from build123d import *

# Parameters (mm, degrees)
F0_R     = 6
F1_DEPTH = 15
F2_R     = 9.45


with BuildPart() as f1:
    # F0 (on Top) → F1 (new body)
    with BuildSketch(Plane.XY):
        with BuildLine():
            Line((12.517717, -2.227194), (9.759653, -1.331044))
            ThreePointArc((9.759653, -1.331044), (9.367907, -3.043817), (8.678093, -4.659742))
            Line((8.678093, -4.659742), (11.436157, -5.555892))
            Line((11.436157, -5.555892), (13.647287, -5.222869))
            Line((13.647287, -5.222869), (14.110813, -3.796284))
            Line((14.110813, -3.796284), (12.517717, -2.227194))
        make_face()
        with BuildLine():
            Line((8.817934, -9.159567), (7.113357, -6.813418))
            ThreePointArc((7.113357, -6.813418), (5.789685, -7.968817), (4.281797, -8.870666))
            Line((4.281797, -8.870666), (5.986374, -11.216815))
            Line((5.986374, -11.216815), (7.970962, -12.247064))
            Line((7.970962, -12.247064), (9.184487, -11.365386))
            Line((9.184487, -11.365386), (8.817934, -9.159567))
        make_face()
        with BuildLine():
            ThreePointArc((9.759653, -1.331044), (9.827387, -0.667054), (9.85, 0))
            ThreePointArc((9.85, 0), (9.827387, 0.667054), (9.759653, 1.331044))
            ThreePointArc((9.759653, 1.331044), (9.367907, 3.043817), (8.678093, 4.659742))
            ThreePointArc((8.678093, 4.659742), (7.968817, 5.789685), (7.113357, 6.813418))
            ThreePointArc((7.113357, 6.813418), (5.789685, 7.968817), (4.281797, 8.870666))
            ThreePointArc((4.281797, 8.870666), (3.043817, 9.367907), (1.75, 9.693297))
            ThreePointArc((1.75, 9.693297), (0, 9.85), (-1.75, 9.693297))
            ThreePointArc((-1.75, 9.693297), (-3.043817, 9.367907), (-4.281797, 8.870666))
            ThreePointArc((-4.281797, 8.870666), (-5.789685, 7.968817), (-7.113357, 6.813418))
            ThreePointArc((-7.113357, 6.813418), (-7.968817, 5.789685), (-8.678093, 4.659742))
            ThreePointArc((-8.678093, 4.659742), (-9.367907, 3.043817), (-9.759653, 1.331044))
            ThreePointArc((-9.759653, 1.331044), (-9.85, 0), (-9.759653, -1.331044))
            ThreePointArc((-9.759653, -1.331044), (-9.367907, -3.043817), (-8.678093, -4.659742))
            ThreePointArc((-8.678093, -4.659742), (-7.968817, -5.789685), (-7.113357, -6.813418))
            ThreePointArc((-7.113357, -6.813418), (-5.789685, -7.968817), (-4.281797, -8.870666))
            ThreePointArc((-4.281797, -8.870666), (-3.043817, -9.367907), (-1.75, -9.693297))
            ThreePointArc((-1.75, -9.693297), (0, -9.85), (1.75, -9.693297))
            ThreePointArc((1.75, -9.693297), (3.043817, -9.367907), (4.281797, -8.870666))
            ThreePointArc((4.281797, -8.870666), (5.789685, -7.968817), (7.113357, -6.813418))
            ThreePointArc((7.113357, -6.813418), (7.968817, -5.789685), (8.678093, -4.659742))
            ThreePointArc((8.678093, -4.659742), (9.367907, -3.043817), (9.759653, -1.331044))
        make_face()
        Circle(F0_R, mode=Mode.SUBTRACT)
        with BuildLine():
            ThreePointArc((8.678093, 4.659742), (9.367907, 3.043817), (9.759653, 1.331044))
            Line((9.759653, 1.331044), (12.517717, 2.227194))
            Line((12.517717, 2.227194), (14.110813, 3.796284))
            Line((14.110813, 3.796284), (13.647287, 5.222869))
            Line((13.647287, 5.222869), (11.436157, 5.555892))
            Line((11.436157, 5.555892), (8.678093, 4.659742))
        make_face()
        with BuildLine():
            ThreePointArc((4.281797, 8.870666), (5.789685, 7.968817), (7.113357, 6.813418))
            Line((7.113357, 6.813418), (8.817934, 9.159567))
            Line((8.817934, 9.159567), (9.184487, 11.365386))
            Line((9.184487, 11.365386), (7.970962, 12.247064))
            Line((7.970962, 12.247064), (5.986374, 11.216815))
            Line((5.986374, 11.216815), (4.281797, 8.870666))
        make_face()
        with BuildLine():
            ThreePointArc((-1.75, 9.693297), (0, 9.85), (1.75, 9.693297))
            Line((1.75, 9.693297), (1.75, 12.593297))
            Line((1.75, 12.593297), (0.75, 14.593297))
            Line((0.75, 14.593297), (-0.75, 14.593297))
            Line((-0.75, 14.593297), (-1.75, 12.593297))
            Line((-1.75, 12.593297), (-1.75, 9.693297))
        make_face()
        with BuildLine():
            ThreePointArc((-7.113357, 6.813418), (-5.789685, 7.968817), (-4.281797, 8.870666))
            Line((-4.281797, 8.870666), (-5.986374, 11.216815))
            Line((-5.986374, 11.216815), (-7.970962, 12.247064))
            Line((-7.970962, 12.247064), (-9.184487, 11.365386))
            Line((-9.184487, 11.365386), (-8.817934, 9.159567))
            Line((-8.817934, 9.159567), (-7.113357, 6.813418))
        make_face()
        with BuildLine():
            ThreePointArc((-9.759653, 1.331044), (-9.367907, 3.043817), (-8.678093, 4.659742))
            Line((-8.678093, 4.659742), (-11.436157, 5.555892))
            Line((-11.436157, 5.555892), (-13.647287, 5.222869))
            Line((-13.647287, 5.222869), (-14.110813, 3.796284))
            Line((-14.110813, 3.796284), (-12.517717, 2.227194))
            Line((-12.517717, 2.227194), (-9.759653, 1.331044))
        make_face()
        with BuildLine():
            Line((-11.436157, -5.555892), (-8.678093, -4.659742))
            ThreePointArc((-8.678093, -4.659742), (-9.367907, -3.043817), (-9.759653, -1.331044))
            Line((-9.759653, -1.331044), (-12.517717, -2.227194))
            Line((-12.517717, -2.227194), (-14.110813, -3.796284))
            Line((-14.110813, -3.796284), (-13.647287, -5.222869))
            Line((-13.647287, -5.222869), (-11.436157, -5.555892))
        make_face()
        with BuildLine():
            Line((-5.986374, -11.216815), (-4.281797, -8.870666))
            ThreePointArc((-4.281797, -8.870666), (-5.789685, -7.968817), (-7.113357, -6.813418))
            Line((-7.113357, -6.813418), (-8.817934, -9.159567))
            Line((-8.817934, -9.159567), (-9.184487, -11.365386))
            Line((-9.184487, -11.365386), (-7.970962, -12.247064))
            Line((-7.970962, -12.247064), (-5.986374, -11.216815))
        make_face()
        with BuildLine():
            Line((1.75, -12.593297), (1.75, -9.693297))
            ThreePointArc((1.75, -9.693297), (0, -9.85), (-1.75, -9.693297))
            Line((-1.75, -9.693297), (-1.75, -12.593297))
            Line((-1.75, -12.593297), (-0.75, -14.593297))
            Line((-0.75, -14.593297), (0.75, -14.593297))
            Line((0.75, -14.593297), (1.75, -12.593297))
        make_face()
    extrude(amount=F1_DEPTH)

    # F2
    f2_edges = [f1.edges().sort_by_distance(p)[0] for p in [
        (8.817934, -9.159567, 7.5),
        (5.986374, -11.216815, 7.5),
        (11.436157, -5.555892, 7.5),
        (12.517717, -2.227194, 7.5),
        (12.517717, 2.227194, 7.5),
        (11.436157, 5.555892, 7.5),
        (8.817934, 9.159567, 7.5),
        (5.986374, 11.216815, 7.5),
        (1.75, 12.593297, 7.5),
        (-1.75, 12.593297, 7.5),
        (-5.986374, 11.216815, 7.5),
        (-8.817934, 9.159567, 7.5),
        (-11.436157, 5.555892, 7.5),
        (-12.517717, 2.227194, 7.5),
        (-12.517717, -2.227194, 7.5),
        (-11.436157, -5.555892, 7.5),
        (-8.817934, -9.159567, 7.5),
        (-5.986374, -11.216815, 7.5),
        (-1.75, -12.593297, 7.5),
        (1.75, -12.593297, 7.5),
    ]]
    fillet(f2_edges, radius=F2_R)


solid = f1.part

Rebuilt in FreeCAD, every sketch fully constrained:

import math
import FreeCAD as App
import Part
import Sketcher
from FreeCAD import Vector
Q = App.Units.Quantity


def edges_at(feature, points):
    """Names of the edges that pass closest to the given points."""
    edges = feature.Shape.Edges
    near = lambda p: min(range(len(edges)), key=lambda i: edges[i].distToShape(Part.Vertex(*p))[0])
    return sorted({f"Edge{near(p) + 1}" for p in points})

doc = App.newDocument("Part")
body = doc.addObject("PartDesign::Body", "Body")

sketch1 = body.newObject("Sketcher::SketchObject", "Sketch")
sketch1.AttachmentSupport = (doc.getObject("XY_Plane"), [""])
sketch1.MapMode = "FlatFace"
sketch1.addGeometry([
    Part.LineSegment(Vector(12.517717, -2.227194, 0), Vector(9.759653, -1.331044, 0)),
    Part.ArcOfCircle(Part.Circle(Vector(-0.000135, 0.000007, 0), Vector(0, 0, 1), 9.850135), math.radians(-7.766153), math.radians(-0.000043)),
    Part.ArcOfCircle(Part.Circle(Vector(-0.000135, -0.000007, 0), Vector(0, 0, 1), 9.850135), math.radians(0.000043), math.radians(7.766153)),
    Part.LineSegment(Vector(9.759653, 1.331044, 0), Vector(12.517717, 2.227194, 0)),
    Part.LineSegment(Vector(12.517717, 2.227194, 0), Vector(14.110813, 3.796284, 0)),
    Part.LineSegment(Vector(14.110813, 3.796284, 0), Vector(13.647287, 5.222869, 0)),
    Part.LineSegment(Vector(13.647287, 5.222869, 0), Vector(11.436157, 5.555892, 0)),
    Part.LineSegment(Vector(11.436157, 5.555892, 0), Vector(8.678093, 4.659742, 0)),
    Part.ArcOfCircle(Part.Circle(Vector(-0.000031, -0.000018, 0), Vector(0, 0, 1), 9.850035), math.radians(28.233787), math.radians(43.766171)),
    Part.LineSegment(Vector(7.113357, 6.813418, 0), Vector(8.817934, 9.159567, 0)),
    Part.LineSegment(Vector(8.817934, 9.159567, 0), Vector(9.184487, 11.365386, 0)),
    Part.LineSegment(Vector(9.184487, 11.365386, 0), Vector(7.970962, 12.247064, 0)),
    Part.LineSegment(Vector(7.970962, 12.247064, 0), Vector(5.986374, 11.216815, 0)),
    Part.LineSegment(Vector(5.986374, 11.216815, 0), Vector(4.281797, 8.870666, 0)),
    Part.ArcOfCircle(Part.Circle(Vector(-0.000002, -0.000001, 0), Vector(0, 0, 1), 9.850002), math.radians(64.233776), math.radians(79.766212)),
    Part.LineSegment(Vector(1.75, 9.693297, 0), Vector(1.75, 12.593297, 0)),
    Part.LineSegment(Vector(1.75, 12.593297, 0), Vector(0.75, 14.593297, 0)),
    Part.LineSegment(Vector(0.75, 14.593297, 0), Vector(-0.75, 14.593297, 0)),
    Part.LineSegment(Vector(-0.75, 14.593297, 0), Vector(-1.75, 12.593297, 0)),
    Part.LineSegment(Vector(-1.75, 12.593297, 0), Vector(-1.75, 9.693297, 0)),
    Part.ArcOfCircle(Part.Circle(Vector(0.000002, -0.000001, 0), Vector(0, 0, 1), 9.850002), math.radians(100.233788), math.radians(115.766224)),
    Part.LineSegment(Vector(-4.281797, 8.870666, 0), Vector(-5.986374, 11.216815, 0)),
    Part.LineSegment(Vector(-5.986374, 11.216815, 0), Vector(-7.970962, 12.247064, 0)),
    Part.LineSegment(Vector(-7.970962, 12.247064, 0), Vector(-9.184487, 11.365386, 0)),
    Part.LineSegment(Vector(-9.184487, 11.365386, 0), Vector(-8.817934, 9.159567, 0)),
    Part.LineSegment(Vector(-8.817934, 9.159567, 0), Vector(-7.113357, 6.813418, 0)),
    Part.ArcOfCircle(Part.Circle(Vector(0.000031, -0.000018, 0), Vector(0, 0, 1), 9.850035), math.radians(136.233829), math.radians(151.766213)),
    Part.LineSegment(Vector(-8.678093, 4.659742, 0), Vector(-11.436157, 5.555892, 0)),
    Part.LineSegment(Vector(-11.436157, 5.555892, 0), Vector(-13.647287, 5.222869, 0)),
    Part.LineSegment(Vector(-13.647287, 5.222869, 0), Vector(-14.110813, 3.796284, 0)),
    Part.LineSegment(Vector(-14.110813, 3.796284, 0), Vector(-12.517717, 2.227194, 0)),
    Part.LineSegment(Vector(-12.517717, 2.227194, 0), Vector(-9.759653, 1.331044, 0)),
    Part.ArcOfCircle(Part.Circle(Vector(0.000027, 0, 0), Vector(0, 0, 1), 9.850027), math.radians(172.233805), math.radians(187.766195)),
    Part.LineSegment(Vector(-9.759653, -1.331044, 0), Vector(-12.517717, -2.227194, 0)),
    Part.LineSegment(Vector(-12.517717, -2.227194, 0), Vector(-14.110813, -3.796284, 0)),
    Part.LineSegment(Vector(-14.110813, -3.796284, 0), Vector(-13.647287, -5.222869, 0)),
    Part.LineSegment(Vector(-13.647287, -5.222869, 0), Vector(-11.436157, -5.555892, 0)),
    Part.LineSegment(Vector(-11.436157, -5.555892, 0), Vector(-8.678093, -4.659742, 0)),
    Part.ArcOfCircle(Part.Circle(Vector(0.000031, 0.000018, 0), Vector(0, 0, 1), 9.850035), math.radians(-151.766213), math.radians(-136.233829)),
    Part.LineSegment(Vector(-7.113357, -6.813418, 0), Vector(-8.817934, -9.159567, 0)),
    Part.LineSegment(Vector(-8.817934, -9.159567, 0), Vector(-9.184487, -11.365386, 0)),
    Part.LineSegment(Vector(-9.184487, -11.365386, 0), Vector(-7.970962, -12.247064, 0)),
    Part.LineSegment(Vector(-7.970962, -12.247064, 0), Vector(-5.986374, -11.216815, 0)),
    Part.LineSegment(Vector(-5.986374, -11.216815, 0), Vector(-4.281797, -8.870666, 0)),
    Part.ArcOfCircle(Part.Circle(Vector(0.000002, 0.000001, 0), Vector(0, 0, 1), 9.850002), math.radians(-115.766224), math.radians(-100.233788)),
    Part.LineSegment(Vector(-1.75, -9.693297, 0), Vector(-1.75, -12.593297, 0)),
    Part.LineSegment(Vector(-1.75, -12.593297, 0), Vector(-0.75, -14.593297, 0)),
    Part.LineSegment(Vector(-0.75, -14.593297, 0), Vector(0.75, -14.593297, 0)),
    Part.LineSegment(Vector(0.75, -14.593297, 0), Vector(1.75, -12.593297, 0)),
    Part.LineSegment(Vector(1.75, -12.593297, 0), Vector(1.75, -9.693297, 0)),
    Part.ArcOfCircle(Part.Circle(Vector(-0.000002, 0.000001, 0), Vector(0, 0, 1), 9.850002), math.radians(-79.766212), math.radians(-64.233776)),
    Part.LineSegment(Vector(4.281797, -8.870666, 0), Vector(5.986374, -11.216815, 0)),
    Part.LineSegment(Vector(5.986374, -11.216815, 0), Vector(7.970962, -12.247064, 0)),
    Part.LineSegment(Vector(7.970962, -12.247064, 0), Vector(9.184487, -11.365386, 0)),
    Part.LineSegment(Vector(9.184487, -11.365386, 0), Vector(8.817934, -9.159567, 0)),
    Part.LineSegment(Vector(8.817934, -9.159567, 0), Vector(7.113357, -6.813418, 0)),
    Part.ArcOfCircle(Part.Circle(Vector(-0.000031, 0.000018, 0), Vector(0, 0, 1), 9.850035), math.radians(-43.766171), math.radians(-28.233787)),
    Part.LineSegment(Vector(8.678093, -4.659742, 0), Vector(11.436157, -5.555892, 0)),
    Part.LineSegment(Vector(11.436157, -5.555892, 0), Vector(13.647287, -5.222869, 0)),
    Part.LineSegment(Vector(13.647287, -5.222869, 0), Vector(14.110813, -3.796284, 0)),
    Part.LineSegment(Vector(14.110813, -3.796284, 0), Vector(12.517717, -2.227194, 0)),
    Part.Circle(Vector(0, 0, 0), Vector(0, 0, 1), 6),
], False)
sketch1.addConstraint([
    Sketcher.Constraint("Coincident", 0, 2, 1, 1),
    Sketcher.Constraint("Coincident", 1, 2, 2, 1),
    Sketcher.Constraint("Coincident", 2, 2, 3, 1),
    Sketcher.Constraint("Coincident", 3, 2, 4, 1),
    Sketcher.Constraint("Coincident", 4, 2, 5, 1),
    Sketcher.Constraint("Coincident", 5, 2, 6, 1),
    Sketcher.Constraint("Coincident", 6, 2, 7, 1),
    Sketcher.Constraint("Coincident", 7, 2, 8, 1),
    Sketcher.Constraint("Coincident", 8, 2, 9, 1),
    Sketcher.Constraint("Coincident", 9, 2, 10, 1),
    Sketcher.Constraint("Coincident", 10, 2, 11, 1),
    Sketcher.Constraint("Coincident", 11, 2, 12, 1),
    Sketcher.Constraint("Coincident", 12, 2, 13, 1),
    Sketcher.Constraint("Coincident", 13, 2, 14, 1),
    Sketcher.Constraint("Coincident", 14, 2, 15, 1),
    Sketcher.Constraint("Coincident", 15, 2, 16, 1),
    Sketcher.Constraint("Coincident", 16, 2, 17, 1),
    Sketcher.Constraint("Coincident", 17, 2, 18, 1),
    Sketcher.Constraint("Coincident", 18, 2, 19, 1),
    Sketcher.Constraint("Coincident", 19, 2, 20, 1),
    Sketcher.Constraint("Coincident", 20, 2, 21, 1),
    Sketcher.Constraint("Coincident", 21, 2, 22, 1),
    Sketcher.Constraint("Coincident", 22, 2, 23, 1),
    Sketcher.Constraint("Coincident", 23, 2, 24, 1),
    Sketcher.Constraint("Coincident", 24, 2, 25, 1),
    Sketcher.Constraint("Coincident", 25, 2, 26, 1),
    Sketcher.Constraint("Coincident", 26, 2, 27, 1),
    Sketcher.Constraint("Coincident", 27, 2, 28, 1),
    Sketcher.Constraint("Coincident", 28, 2, 29, 1),
    Sketcher.Constraint("Coincident", 29, 2, 30, 1),
    Sketcher.Constraint("Coincident", 30, 2, 31, 1),
    Sketcher.Constraint("Coincident", 31, 2, 32, 1),
    Sketcher.Constraint("Coincident", 32, 2, 33, 1),
    Sketcher.Constraint("Coincident", 33, 2, 34, 1),
    Sketcher.Constraint("Coincident", 34, 2, 35, 1),
    Sketcher.Constraint("Coincident", 35, 2, 36, 1),
    Sketcher.Constraint("Coincident", 36, 2, 37, 1),
    Sketcher.Constraint("Coincident", 37, 2, 38, 1),
    Sketcher.Constraint("Coincident", 38, 2, 39, 1),
    Sketcher.Constraint("Coincident", 39, 2, 40, 1),
    Sketcher.Constraint("Coincident", 40, 2, 41, 1),
    Sketcher.Constraint("Coincident", 41, 2, 42, 1),
    Sketcher.Constraint("Coincident", 42, 2, 43, 1),
    Sketcher.Constraint("Coincident", 43, 2, 44, 1),
    Sketcher.Constraint("Coincident", 44, 2, 45, 1),
    Sketcher.Constraint("Coincident", 45, 2, 46, 1),
    Sketcher.Constraint("Coincident", 46, 2, 47, 1),
    Sketcher.Constraint("Coincident", 47, 2, 48, 1),
    Sketcher.Constraint("Coincident", 48, 2, 49, 1),
    Sketcher.Constraint("Coincident", 49, 2, 50, 1),
    Sketcher.Constraint("Coincident", 50, 2, 51, 1),
    Sketcher.Constraint("Coincident", 51, 2, 52, 1),
    Sketcher.Constraint("Coincident", 52, 2, 53, 1),
    Sketcher.Constraint("Coincident", 53, 2, 54, 1),
    Sketcher.Constraint("Coincident", 54, 2, 55, 1),
    Sketcher.Constraint("Coincident", 55, 2, 56, 1),
    Sketcher.Constraint("Coincident", 56, 2, 57, 1),
    Sketcher.Constraint("Coincident", 57, 2, 58, 1),
    Sketcher.Constraint("Coincident", 58, 2, 59, 1),
    Sketcher.Constraint("Coincident", 59, 2, 60, 1),
    Sketcher.Constraint("Coincident", 60, 2, 0, 1),
    Sketcher.Constraint("Vertical", 15),
    Sketcher.Constraint("Horizontal", 17),
    Sketcher.Constraint("Vertical", 19),
    Sketcher.Constraint("Vertical", 45),
    Sketcher.Constraint("Horizontal", 47),
    Sketcher.Constraint("Vertical", 49),
    Sketcher.Constraint("Coincident", 14, 3, -1, 1),
    Sketcher.Constraint("Coincident", 20, 3, -1, 1),
    Sketcher.Constraint("Coincident", 44, 3, -1, 1),
    Sketcher.Constraint("Coincident", 50, 3, -1, 1),
    Sketcher.Constraint("Coincident", 61, 3, -1, 1),
    Sketcher.Constraint("PointOnObject", 32, 3, -1),
    Sketcher.Constraint("PointOnObject", 1, 2, -1),
    Sketcher.Constraint("Diameter", 61, Q("12 mm")),
    Sketcher.Constraint("Radius", 14, Q("9.850002 mm")),
    Sketcher.Constraint("Radius", 20, Q("9.850002 mm")),
    Sketcher.Constraint("Radius", 44, Q("9.850002 mm")),
    Sketcher.Constraint("Radius", 50, Q("9.850002 mm")),
    Sketcher.Constraint("DistanceX", 17, 2, 17, 1, Q("1.5 mm")),
    Sketcher.Constraint("DistanceX", 47, 1, 47, 2, Q("1.5 mm")),
    Sketcher.Constraint("DistanceY", 15, 1, 15, 2, Q("2.9 mm")),
    Sketcher.Constraint("DistanceY", 19, 2, 19, 1, Q("2.9 mm")),
    Sketcher.Constraint("DistanceY", 45, 2, 45, 1, Q("2.9 mm")),
    Sketcher.Constraint("DistanceY", 49, 1, 49, 2, Q("2.9 mm")),
    Sketcher.Constraint("Distance", 0, Q("2.9 mm")),
    Sketcher.Constraint("Distance", 3, Q("2.9 mm")),
    Sketcher.Constraint("Distance", 5, Q("1.5 mm")),
    Sketcher.Constraint("Distance", 7, Q("2.9 mm")),
    Sketcher.Constraint("Distance", 9, Q("2.9 mm")),
    Sketcher.Constraint("Distance", 11, Q("1.5 mm")),
    Sketcher.Constraint("Distance", 13, Q("2.9 mm")),
    Sketcher.Constraint("Distance", 21, Q("2.9 mm")),
    Sketcher.Constraint("Distance", 23, Q("1.5 mm")),
    Sketcher.Constraint("Distance", 25, Q("2.9 mm")),
    Sketcher.Constraint("Distance", 27, Q("2.9 mm")),
    Sketcher.Constraint("Distance", 29, Q("1.5 mm")),
    Sketcher.Constraint("Distance", 31, Q("2.9 mm")),
    Sketcher.Constraint("Distance", 33, Q("2.9 mm")),
    Sketcher.Constraint("Distance", 35, Q("1.5 mm")),
    Sketcher.Constraint("Distance", 37, Q("2.9 mm")),
    Sketcher.Constraint("Distance", 39, Q("2.9 mm")),
    Sketcher.Constraint("Distance", 41, Q("1.5 mm")),
    Sketcher.Constraint("Distance", 43, Q("2.9 mm")),
    Sketcher.Constraint("Distance", 51, Q("2.9 mm")),
    Sketcher.Constraint("Distance", 53, Q("1.5 mm")),
    Sketcher.Constraint("Distance", 55, Q("2.9 mm")),
    Sketcher.Constraint("Distance", 57, Q("2.9 mm")),
    Sketcher.Constraint("Distance", 59, Q("1.5 mm")),
    Sketcher.Constraint("DistanceX", -1, 1, 1, 2, Q("9.85 mm")),
    Sketcher.Constraint("DistanceX", -1, 1, 14, 2, Q("1.75 mm")),
    Sketcher.Constraint("DistanceX", -1, 1, 16, 2, Q("0.75 mm")),
    Sketcher.Constraint("DistanceX", 18, 2, -1, 1, Q("1.75 mm")),
    Sketcher.Constraint("DistanceX", 44, 2, -1, 1, Q("1.75 mm")),
    Sketcher.Constraint("DistanceX", 46, 2, -1, 1, Q("0.75 mm")),
    Sketcher.Constraint("DistanceX", -1, 1, 48, 2, Q("1.75 mm")),
    Sketcher.Constraint("Radius", 1, Q("9.850135 mm")),
    Sketcher.Constraint("Radius", 2, Q("9.850135 mm")),
    Sketcher.Constraint("Radius", 8, Q("9.850035 mm")),
    Sketcher.Constraint("Radius", 26, Q("9.850035 mm")),
    Sketcher.Constraint("Radius", 32, Q("9.850027 mm")),
    Sketcher.Constraint("Radius", 38, Q("9.850035 mm")),
    Sketcher.Constraint("Radius", 56, Q("9.850035 mm")),
    Sketcher.Constraint("Distance", 6, Q("2.236068 mm")),
    Sketcher.Constraint("Distance", 12, Q("2.236069 mm")),
    Sketcher.Constraint("Distance", 22, Q("2.236069 mm")),
    Sketcher.Constraint("Distance", 28, Q("2.236068 mm")),
    Sketcher.Constraint("Distance", 36, Q("2.236068 mm")),
    Sketcher.Constraint("Distance", 42, Q("2.236069 mm")),
    Sketcher.Constraint("Distance", 52, Q("2.236069 mm")),
    Sketcher.Constraint("Distance", 58, Q("2.236068 mm")),
    Sketcher.Constraint("DistanceY", -1, 1, 5, 2, Q("5.222869 mm")),
    Sketcher.Constraint("DistanceY", -1, 1, 7, 2, Q("4.659742 mm")),
    Sketcher.Constraint("DistanceY", -1, 1, 25, 2, Q("6.813418 mm")),
    Sketcher.Constraint("DistanceY", -1, 1, 26, 2, Q("4.659742 mm")),
    Sketcher.Constraint("DistanceY", -1, 1, 28, 2, Q("5.222869 mm")),
    Sketcher.Constraint("DistanceY", 35, 2, -1, 1, Q("5.222869 mm")),
    Sketcher.Constraint("DistanceY", 37, 2, -1, 1, Q("4.659742 mm")),
    Sketcher.Constraint("DistanceY", 55, 2, -1, 1, Q("6.813418 mm")),
    Sketcher.Constraint("DistanceY", 56, 2, -1, 1, Q("4.659742 mm")),
    Sketcher.Constraint("DistanceY", 58, 2, -1, 1, Q("5.222869 mm")),
    Sketcher.Constraint("Distance", 4, Q("2.236068 mm")),
    Sketcher.Constraint("Distance", 10, Q("2.236068 mm")),
    Sketcher.Constraint("Distance", 16, Q("2.236068 mm")),
    Sketcher.Constraint("Distance", 24, Q("2.236068 mm")),
    Sketcher.Constraint("Distance", 30, Q("2.236068 mm")),
    Sketcher.Constraint("Distance", 34, Q("2.236068 mm")),
    Sketcher.Constraint("Distance", 40, Q("2.236068 mm")),
    Sketcher.Constraint("Distance", 46, Q("2.236068 mm")),
    Sketcher.Constraint("Distance", 54, Q("2.236068 mm")),
    Sketcher.Constraint("Distance", 60, Q("2.236068 mm")),
    Sketcher.Constraint("DistanceX", -1, 1, 0, 2, Q("9.759653 mm")),
    Sketcher.Constraint("DistanceY", 0, 2, -1, 1, Q("1.331044 mm")),
    Sketcher.Constraint("DistanceX", -1, 1, 2, 2, Q("9.759653 mm")),
    Sketcher.Constraint("DistanceY", -1, 1, 2, 2, Q("1.331044 mm")),
    Sketcher.Constraint("DistanceX", -1, 1, 3, 2, Q("12.517717 mm")),
    Sketcher.Constraint("DistanceX", -1, 1, 4, 2, Q("14.110813 mm")),
    Sketcher.Constraint("DistanceX", -1, 1, 6, 2, Q("11.436157 mm")),
    Sketcher.Constraint("DistanceX", -1, 1, 8, 2, Q("7.113357 mm")),
    Sketcher.Constraint("DistanceY", -1, 1, 8, 2, Q("6.813418 mm")),
    Sketcher.Constraint("DistanceX", -1, 1, 9, 2, Q("8.817934 mm")),
    Sketcher.Constraint("DistanceX", -1, 1, 10, 2, Q("9.184487 mm")),
    Sketcher.Constraint("DistanceX", -1, 1, 11, 2, Q("7.970962 mm")),
    Sketcher.Constraint("DistanceX", -1, 1, 12, 2, Q("5.986374 mm")),
    Sketcher.Constraint("DistanceX", 20, 2, -1, 1, Q("4.281797 mm")),
    Sketcher.Constraint("DistanceX", 21, 2, -1, 1, Q("5.986374 mm")),
    Sketcher.Constraint("DistanceX", 22, 2, -1, 1, Q("7.970962 mm")),
    Sketcher.Constraint("DistanceX", 23, 2, -1, 1, Q("9.184487 mm")),
    Sketcher.Constraint("DistanceX", 24, 2, -1, 1, Q("8.817934 mm")),
    Sketcher.Constraint("DistanceX", 26, 2, -1, 1, Q("8.678093 mm")),
    Sketcher.Constraint("DistanceX", 27, 2, -1, 1, Q("11.436157 mm")),
    Sketcher.Constraint("DistanceX", 29, 2, -1, 1, Q("14.110813 mm")),
    Sketcher.Constraint("DistanceX", 30, 2, -1, 1, Q("12.517717 mm")),
    Sketcher.Constraint("DistanceX", 31, 2, -1, 1, Q("9.759653 mm")),
    Sketcher.Constraint("DistanceX", 32, 2, -1, 1, Q("9.759653 mm")),
    Sketcher.Constraint("DistanceX", 33, 2, -1, 1, Q("12.517717 mm")),
    Sketcher.Constraint("DistanceX", 34, 2, -1, 1, Q("14.110813 mm")),
    Sketcher.Constraint("DistanceX", 36, 2, -1, 1, Q("11.436157 mm")),
    Sketcher.Constraint("DistanceX", 38, 2, -1, 1, Q("7.113357 mm")),
    Sketcher.Constraint("DistanceY", 38, 2, -1, 1, Q("6.813418 mm")),
    Sketcher.Constraint("DistanceX", 39, 2, -1, 1, Q("8.817934 mm")),
    Sketcher.Constraint("DistanceX", 40, 2, -1, 1, Q("9.184487 mm")),
    Sketcher.Constraint("DistanceX", 41, 2, -1, 1, Q("7.970962 mm")),
    Sketcher.Constraint("DistanceX", 42, 2, -1, 1, Q("5.986374 mm")),
    Sketcher.Constraint("DistanceX", -1, 1, 50, 2, Q("4.281797 mm")),
    Sketcher.Constraint("DistanceX", -1, 1, 51, 2, Q("5.986374 mm")),
    Sketcher.Constraint("DistanceX", -1, 1, 52, 2, Q("7.970962 mm")),
    Sketcher.Constraint("DistanceX", -1, 1, 53, 2, Q("9.184487 mm")),
    Sketcher.Constraint("DistanceX", -1, 1, 54, 2, Q("8.817934 mm")),
    Sketcher.Constraint("DistanceX", -1, 1, 56, 2, Q("8.678093 mm")),
    Sketcher.Constraint("DistanceX", -1, 1, 57, 2, Q("11.436157 mm")),
    Sketcher.Constraint("DistanceX", -1, 1, 59, 2, Q("14.110813 mm")),
])
pad1 = body.newObject("PartDesign::Pad", "Pad")
pad1.Profile = sketch1
pad1.Length = 15
doc.recompute()

fillet = body.newObject("PartDesign::Fillet", "Fillet")
fillet.Base = (pad1, edges_at(pad1, [
    (8.818, -9.16, 7.5),
    (5.986, -11.217, 7.5),
    (11.436, -5.556, 7.5),
    (12.518, -2.227, 7.5),
    (12.518, 2.227, 7.5),
    (11.436, 5.556, 7.5),
    (8.818, 9.16, 7.5),
    (5.986, 11.217, 7.5),
    (1.75, 12.593, 7.5),
    (-1.75, 12.593, 7.5),
    (-5.986, 11.217, 7.5),
    (-8.818, 9.16, 7.5),
    (-11.436, 5.556, 7.5),
    (-12.518, 2.227, 7.5),
    (-12.518, -2.227, 7.5),
    (-11.436, -5.556, 7.5),
    (-8.818, -9.16, 7.5),
    (-5.986, -11.217, 7.5),
    (-1.75, -12.593, 7.5),
    (1.75, -12.593, 7.5),
]))
fillet.Radius = 9.45

doc.recompute()
